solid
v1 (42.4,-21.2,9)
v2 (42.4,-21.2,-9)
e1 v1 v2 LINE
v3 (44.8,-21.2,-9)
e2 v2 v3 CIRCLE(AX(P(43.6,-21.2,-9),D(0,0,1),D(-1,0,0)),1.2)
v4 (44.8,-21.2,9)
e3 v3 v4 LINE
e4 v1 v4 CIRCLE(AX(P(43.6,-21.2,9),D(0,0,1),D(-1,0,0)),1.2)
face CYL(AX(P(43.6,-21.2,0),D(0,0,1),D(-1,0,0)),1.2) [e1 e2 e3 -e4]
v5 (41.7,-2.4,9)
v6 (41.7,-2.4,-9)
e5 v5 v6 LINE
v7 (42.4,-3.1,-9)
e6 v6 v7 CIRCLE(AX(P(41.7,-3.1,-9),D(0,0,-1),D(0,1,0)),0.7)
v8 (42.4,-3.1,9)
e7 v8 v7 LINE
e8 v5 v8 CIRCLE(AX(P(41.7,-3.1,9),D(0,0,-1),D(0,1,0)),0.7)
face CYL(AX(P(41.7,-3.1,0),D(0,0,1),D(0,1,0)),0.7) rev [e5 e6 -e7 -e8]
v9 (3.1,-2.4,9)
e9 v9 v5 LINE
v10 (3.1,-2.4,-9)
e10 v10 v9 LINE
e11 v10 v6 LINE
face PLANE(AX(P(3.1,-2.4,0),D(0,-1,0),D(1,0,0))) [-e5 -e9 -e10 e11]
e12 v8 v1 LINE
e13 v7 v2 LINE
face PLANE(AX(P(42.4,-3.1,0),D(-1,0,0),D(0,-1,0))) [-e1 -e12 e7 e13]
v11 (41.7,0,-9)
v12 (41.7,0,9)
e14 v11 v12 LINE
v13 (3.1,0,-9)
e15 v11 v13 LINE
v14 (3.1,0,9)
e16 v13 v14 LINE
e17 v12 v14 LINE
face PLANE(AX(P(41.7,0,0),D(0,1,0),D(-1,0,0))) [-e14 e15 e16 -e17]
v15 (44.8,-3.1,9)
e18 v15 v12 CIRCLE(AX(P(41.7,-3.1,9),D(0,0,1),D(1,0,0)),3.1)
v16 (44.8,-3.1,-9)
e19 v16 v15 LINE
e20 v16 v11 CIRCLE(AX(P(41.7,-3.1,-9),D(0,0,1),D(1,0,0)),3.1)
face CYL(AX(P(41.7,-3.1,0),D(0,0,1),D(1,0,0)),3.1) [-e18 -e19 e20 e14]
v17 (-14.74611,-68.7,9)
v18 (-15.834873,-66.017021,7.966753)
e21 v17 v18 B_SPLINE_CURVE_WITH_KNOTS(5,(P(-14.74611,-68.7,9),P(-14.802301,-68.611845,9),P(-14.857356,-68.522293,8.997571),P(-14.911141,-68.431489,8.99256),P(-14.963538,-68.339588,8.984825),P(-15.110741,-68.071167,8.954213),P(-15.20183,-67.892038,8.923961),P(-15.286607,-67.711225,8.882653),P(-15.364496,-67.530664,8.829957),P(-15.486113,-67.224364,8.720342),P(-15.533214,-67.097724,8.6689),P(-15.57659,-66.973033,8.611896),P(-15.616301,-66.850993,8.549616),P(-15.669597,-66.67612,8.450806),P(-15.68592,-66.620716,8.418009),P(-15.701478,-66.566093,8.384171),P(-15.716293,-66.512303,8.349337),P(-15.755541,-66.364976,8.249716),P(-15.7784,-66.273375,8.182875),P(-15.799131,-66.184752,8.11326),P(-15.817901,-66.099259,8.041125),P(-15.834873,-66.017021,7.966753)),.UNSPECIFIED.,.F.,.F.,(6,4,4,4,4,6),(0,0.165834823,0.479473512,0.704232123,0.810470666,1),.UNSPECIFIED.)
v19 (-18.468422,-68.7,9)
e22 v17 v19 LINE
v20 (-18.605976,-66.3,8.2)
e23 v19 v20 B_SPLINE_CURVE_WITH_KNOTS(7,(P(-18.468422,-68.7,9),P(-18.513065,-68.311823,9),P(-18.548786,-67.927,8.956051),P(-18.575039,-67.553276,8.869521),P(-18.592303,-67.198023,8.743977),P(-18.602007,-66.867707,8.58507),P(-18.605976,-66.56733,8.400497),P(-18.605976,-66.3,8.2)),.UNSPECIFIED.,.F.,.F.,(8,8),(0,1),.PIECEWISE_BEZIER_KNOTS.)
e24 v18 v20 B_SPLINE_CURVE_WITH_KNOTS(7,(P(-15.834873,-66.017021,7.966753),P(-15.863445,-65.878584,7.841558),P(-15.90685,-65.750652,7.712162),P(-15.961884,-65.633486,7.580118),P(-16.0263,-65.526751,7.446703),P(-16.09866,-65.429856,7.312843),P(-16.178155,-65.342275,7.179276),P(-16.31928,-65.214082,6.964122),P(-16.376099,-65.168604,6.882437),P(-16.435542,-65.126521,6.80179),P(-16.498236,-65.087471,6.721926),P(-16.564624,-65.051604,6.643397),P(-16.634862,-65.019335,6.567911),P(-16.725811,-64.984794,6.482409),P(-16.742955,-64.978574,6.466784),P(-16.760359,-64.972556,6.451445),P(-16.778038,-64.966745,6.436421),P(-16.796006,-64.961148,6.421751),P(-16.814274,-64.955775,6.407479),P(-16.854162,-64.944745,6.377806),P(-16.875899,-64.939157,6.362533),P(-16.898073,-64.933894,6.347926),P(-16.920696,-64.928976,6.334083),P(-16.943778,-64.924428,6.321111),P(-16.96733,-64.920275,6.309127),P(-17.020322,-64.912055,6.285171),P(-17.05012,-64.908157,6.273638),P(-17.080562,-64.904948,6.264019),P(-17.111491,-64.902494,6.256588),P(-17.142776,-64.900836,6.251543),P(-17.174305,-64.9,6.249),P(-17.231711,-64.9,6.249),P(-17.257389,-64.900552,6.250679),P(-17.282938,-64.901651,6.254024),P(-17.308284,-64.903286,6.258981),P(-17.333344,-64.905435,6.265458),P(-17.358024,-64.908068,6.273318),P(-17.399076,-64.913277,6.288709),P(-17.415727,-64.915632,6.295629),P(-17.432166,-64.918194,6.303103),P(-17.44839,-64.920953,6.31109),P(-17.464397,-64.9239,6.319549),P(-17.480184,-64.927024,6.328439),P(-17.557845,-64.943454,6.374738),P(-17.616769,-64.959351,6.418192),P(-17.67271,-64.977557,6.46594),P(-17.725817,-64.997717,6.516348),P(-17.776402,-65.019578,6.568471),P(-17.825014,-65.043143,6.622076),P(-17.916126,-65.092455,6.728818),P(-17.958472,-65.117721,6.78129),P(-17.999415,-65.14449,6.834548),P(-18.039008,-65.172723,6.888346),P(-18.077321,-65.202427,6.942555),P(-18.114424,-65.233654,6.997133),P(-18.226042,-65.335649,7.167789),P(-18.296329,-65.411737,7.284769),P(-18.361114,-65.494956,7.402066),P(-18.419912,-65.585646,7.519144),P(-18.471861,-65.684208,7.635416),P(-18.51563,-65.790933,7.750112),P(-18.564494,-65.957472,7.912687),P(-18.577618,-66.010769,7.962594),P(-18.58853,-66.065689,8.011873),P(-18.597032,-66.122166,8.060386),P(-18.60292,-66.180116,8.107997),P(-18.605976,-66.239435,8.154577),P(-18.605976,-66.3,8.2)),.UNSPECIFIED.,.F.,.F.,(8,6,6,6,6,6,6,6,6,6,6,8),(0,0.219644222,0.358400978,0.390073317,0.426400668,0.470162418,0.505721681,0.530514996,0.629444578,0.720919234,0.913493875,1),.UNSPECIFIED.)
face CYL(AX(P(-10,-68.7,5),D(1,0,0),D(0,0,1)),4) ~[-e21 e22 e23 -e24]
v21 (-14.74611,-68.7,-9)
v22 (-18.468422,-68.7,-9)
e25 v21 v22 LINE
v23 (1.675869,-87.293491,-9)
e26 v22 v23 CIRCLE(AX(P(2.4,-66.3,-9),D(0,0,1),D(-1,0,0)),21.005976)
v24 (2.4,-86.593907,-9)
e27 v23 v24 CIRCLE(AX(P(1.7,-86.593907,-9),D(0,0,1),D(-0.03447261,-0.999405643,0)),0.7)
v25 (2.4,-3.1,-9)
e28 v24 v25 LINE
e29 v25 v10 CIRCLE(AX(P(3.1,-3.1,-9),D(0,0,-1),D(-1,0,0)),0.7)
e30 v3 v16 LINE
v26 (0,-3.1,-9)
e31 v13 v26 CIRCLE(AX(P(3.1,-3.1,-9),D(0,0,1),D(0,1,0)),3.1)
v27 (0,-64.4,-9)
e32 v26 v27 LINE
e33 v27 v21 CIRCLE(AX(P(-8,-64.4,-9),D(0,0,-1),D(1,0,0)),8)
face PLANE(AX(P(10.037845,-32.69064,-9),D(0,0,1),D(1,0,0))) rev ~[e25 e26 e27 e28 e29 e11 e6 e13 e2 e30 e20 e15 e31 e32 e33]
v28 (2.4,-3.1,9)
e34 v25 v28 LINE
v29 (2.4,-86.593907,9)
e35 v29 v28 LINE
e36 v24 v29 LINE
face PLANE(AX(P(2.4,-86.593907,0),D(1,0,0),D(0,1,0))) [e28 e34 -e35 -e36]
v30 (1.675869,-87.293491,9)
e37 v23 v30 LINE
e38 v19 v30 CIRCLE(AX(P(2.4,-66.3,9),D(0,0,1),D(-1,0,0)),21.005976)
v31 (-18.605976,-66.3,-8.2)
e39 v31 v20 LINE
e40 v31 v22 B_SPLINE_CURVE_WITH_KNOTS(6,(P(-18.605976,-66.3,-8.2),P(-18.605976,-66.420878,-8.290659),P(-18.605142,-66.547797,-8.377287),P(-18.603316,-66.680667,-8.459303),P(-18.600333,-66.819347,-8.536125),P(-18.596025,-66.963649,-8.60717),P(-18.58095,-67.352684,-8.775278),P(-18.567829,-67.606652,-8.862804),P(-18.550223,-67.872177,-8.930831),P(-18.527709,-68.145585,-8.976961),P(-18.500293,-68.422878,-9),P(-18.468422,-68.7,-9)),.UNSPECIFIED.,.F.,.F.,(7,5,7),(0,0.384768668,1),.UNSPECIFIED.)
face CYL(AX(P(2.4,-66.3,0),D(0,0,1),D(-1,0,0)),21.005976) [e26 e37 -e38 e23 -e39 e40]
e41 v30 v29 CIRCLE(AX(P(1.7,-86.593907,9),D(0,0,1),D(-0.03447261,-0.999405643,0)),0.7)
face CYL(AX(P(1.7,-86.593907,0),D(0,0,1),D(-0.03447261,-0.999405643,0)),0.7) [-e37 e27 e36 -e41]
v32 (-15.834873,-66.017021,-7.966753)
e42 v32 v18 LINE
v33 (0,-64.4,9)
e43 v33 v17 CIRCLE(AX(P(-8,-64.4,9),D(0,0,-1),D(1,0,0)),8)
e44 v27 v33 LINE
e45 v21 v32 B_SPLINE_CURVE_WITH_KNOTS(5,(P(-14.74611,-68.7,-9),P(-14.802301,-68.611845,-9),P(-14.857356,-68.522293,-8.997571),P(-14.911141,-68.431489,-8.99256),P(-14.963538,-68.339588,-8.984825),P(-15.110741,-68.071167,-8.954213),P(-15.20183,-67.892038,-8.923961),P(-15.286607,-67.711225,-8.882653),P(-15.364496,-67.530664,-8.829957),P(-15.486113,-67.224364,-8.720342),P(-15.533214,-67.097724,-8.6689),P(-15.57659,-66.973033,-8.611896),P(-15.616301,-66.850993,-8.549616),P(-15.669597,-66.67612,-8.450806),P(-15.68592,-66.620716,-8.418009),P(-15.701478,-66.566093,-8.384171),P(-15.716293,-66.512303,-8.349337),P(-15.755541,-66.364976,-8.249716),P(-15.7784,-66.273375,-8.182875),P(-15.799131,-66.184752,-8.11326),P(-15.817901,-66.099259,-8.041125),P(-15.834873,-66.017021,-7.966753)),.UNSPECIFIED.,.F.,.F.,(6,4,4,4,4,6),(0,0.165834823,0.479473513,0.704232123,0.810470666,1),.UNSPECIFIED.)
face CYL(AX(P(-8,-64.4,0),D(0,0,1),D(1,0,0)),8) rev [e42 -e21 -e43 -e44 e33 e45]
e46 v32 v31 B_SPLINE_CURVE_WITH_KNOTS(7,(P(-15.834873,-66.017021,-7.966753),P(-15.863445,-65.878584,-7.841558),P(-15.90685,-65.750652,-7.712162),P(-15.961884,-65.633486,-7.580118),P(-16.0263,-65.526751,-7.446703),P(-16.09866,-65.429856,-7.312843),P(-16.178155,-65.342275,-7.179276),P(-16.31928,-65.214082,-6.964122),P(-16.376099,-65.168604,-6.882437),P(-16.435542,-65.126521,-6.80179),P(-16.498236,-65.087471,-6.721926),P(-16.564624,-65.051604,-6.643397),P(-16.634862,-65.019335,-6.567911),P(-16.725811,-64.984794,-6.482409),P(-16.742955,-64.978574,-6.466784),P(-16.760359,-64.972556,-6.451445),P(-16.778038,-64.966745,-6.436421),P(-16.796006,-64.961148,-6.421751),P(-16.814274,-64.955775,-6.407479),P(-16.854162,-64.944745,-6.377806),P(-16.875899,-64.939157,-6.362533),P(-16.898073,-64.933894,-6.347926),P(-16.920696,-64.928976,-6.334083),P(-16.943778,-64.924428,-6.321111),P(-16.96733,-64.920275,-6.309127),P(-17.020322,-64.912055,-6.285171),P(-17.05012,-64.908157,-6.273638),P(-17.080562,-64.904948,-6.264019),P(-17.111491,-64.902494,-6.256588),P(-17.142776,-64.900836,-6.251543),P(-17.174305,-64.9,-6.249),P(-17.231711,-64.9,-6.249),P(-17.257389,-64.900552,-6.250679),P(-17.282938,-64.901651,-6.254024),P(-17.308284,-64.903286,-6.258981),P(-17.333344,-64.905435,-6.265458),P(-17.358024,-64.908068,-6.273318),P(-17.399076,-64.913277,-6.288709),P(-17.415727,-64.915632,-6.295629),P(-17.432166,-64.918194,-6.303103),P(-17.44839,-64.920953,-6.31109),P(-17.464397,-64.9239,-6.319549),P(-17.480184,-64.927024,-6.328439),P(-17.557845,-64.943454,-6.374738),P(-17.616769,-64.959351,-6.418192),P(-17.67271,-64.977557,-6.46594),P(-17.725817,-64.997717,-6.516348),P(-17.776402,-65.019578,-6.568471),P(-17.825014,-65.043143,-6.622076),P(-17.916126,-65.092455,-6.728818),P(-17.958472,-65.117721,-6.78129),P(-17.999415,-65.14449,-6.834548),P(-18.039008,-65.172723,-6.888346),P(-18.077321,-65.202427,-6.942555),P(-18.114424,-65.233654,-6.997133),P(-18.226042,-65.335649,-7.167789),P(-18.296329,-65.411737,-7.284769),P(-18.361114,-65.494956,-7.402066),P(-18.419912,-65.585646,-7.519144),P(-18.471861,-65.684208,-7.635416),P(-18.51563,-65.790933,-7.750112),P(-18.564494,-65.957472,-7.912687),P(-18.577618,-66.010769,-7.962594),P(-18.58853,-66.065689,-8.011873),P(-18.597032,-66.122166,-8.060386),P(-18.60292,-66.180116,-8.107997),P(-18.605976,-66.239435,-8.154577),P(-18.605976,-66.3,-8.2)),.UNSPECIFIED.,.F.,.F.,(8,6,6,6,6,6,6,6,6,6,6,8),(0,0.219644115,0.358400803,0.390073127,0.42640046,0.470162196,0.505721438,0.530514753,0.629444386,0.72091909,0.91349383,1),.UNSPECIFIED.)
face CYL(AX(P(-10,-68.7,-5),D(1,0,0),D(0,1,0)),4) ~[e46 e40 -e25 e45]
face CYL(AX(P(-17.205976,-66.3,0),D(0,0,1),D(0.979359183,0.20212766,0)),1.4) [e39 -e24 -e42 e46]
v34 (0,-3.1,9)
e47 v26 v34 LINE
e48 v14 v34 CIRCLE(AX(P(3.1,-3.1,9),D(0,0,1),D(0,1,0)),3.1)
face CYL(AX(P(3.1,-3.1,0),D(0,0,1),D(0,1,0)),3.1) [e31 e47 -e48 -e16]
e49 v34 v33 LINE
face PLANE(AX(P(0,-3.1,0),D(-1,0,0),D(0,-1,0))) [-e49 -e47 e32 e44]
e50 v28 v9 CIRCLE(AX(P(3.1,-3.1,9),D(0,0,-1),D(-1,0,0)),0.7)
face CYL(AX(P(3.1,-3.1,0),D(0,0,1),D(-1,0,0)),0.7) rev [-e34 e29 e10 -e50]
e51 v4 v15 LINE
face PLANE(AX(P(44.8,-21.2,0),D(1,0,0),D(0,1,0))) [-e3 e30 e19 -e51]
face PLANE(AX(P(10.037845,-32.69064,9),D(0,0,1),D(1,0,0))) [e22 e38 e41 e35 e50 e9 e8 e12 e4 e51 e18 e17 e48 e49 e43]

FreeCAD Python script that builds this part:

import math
import FreeCAD as App
import Part
import Sketcher
from FreeCAD import Vector
Q = App.Units.Quantity

doc = App.newDocument("Part")
body = doc.addObject("PartDesign::Body", "Body")

sketch1 = body.newObject("Sketcher::SketchObject", "Sketch")
sketch1.AttachmentSupport = (doc.getObject("XY_Plane"), [""])
sketch1.MapMode = "FlatFace"
sketch1.addGeometry(Part.ArcOfCircle(Part.Circle(Vector(43.6, -21.2, 0), Vector(0, 0, 1), 1.2), math.radians(180), math.radians(360)), False)
sketch1.addGeometry(Part.LineSegment(Vector(44.8, -21.2, 0), Vector(44.8, -3.1, 0)), False)
sketch1.addGeometry(Part.ArcOfCircle(Part.Circle(Vector(41.7, -3.1, 0), Vector(0, 0, 1), 3.1), math.radians(0), math.radians(90)), False)
sketch1.addGeometry(Part.LineSegment(Vector(41.7, 0, 0), Vector(3.1, 0, 0)), False)
sketch1.addGeometry(Part.ArcOfCircle(Part.Circle(Vector(3.1, -3.1, 0), Vector(0, 0, 1), 3.1), math.radians(90), math.radians(180)), False)
sketch1.addGeometry(Part.LineSegment(Vector(0, -3.1, 0), Vector(0, -64.4, 0)), False)
sketch1.addGeometry(Part.ArcOfCircle(Part.Circle(Vector(-8, -64.4, 0), Vector(0, 0, 1), 8), math.radians(-168), math.radians(0)), False)
sketch1.addGeometry(Part.ArcOfCircle(Part.Circle(Vector(-17.2, -66.3, 0), Vector(0, 0, 1), 1.4), math.radians(12), math.radians(180)), False)
sketch1.addGeometry(Part.ArcOfCircle(Part.Circle(Vector(2.4, -66.3, 0), Vector(0, 0, 1), 21), math.radians(180), math.radians(268)), False)
sketch1.addGeometry(Part.ArcOfCircle(Part.Circle(Vector(1.7, -86.6, 0), Vector(0, 0, 1), 0.7), math.radians(-92), math.radians(0)), False)
sketch1.addGeometry(Part.LineSegment(Vector(2.4, -86.6, 0), Vector(2.4, -3.1, 0)), False)
sketch1.addGeometry(Part.ArcOfCircle(Part.Circle(Vector(3.1, -3.1, 0), Vector(0, 0, 1), 0.7), math.radians(90), math.radians(180)), False)
sketch1.addGeometry(Part.LineSegment(Vector(3.1, -2.4, 0), Vector(41.7, -2.4, 0)), False)
sketch1.addGeometry(Part.ArcOfCircle(Part.Circle(Vector(41.7, -3.1, 0), Vector(0, 0, 1), 0.7), math.radians(0), math.radians(90)), False)
sketch1.addGeometry(Part.LineSegment(Vector(42.4, -3.1, 0), Vector(42.4, -21.2, 0)), False)
sketch1.addConstraint(Sketcher.Constraint("Tangent", 0, 2, 1, 1))
sketch1.addConstraint(Sketcher.Constraint("Tangent", 1, 2, 2, 1))
sketch1.addConstraint(Sketcher.Constraint("Tangent", 2, 2, 3, 1))
sketch1.addConstraint(Sketcher.Constraint("Tangent", 3, 2, 4, 1))
sketch1.addConstraint(Sketcher.Constraint("Tangent", 4, 2, 5, 1))
sketch1.addConstraint(Sketcher.Constraint("Tangent", 5, 2, 6, 2))
sketch1.addConstraint(Sketcher.Constraint("Tangent", 6, 1, 7, 1))
sketch1.addConstraint(Sketcher.Constraint("Tangent", 7, 2, 8, 1))
sketch1.addConstraint(Sketcher.Constraint("Tangent", 8, 2, 9, 1))
sketch1.addConstraint(Sketcher.Constraint("Tangent", 9, 2, 10, 1))
sketch1.addConstraint(Sketcher.Constraint("Tangent", 10, 2, 11, 2))
sketch1.addConstraint(Sketcher.Constraint("Tangent", 11, 1, 12, 1))
sketch1.addConstraint(Sketcher.Constraint("Tangent", 12, 2, 13, 2))
sketch1.addConstraint(Sketcher.Constraint("Tangent", 13, 1, 14, 1))
sketch1.addConstraint(Sketcher.Constraint("Tangent", 14, 2, 0, 1))
sketch1.addConstraint(Sketcher.Constraint("Vertical", 1))
sketch1.addConstraint(Sketcher.Constraint("Horizontal", 3))
sketch1.addConstraint(Sketcher.Constraint("Vertical", 5))
sketch1.addConstraint(Sketcher.Constraint("Vertical", 10))
sketch1.addConstraint(Sketcher.Constraint("Horizontal", 12))
sketch1.addConstraint(Sketcher.Constraint("Vertical", 14))
sketch1.addConstraint(Sketcher.Constraint("Coincident", 11, 3, 4, 3))
sketch1.addConstraint(Sketcher.Constraint("Coincident", 13, 3, 2, 3))
sketch1.addConstraint(Sketcher.Constraint("Equal", 2, 4))
sketch1.addConstraint(Sketcher.Constraint("Equal", 9, 11))
sketch1.addConstraint(Sketcher.Constraint("PointOnObject", 2, 2, -1))
sketch1.addConstraint(Sketcher.Constraint("PointOnObject", 4, 2, -2))
sketch1.addConstraint(Sketcher.Constraint("Horizontal", 7, 3, 8, 3))
sketch1.addConstraint(Sketcher.Constraint("Vertical", 8, 3, 9, 2))
sketch1.addConstraint(Sketcher.Constraint("Radius", 6, Q("8 mm")))
sketch1.addConstraint(Sketcher.Constraint("Radius", 0, Q("1.2 mm")))
sketch1.addConstraint(Sketcher.Constraint("Radius", 2, Q("3.1 mm")))
sketch1.addConstraint(Sketcher.Constraint("Radius", 7, Q("1.4 mm")))
sketch1.addConstraint(Sketcher.Constraint("DistanceX", 3, 2, 3, 1, Q("38.6 mm")))
sketch1.addConstraint(Sketcher.Constraint("DistanceY", 1, 1, 1, 2, Q("18.1 mm")))
sketch1.addConstraint(Sketcher.Constraint("DistanceY", 5, 2, 5, 1, Q("61.3 mm")))
sketch1.addConstraint(Sketcher.Constraint("DistanceY", 7, 3, -1, 1, Q("66.3 mm")))
pad1 = body.newObject("PartDesign::Pad", "Pad")
pad1.Profile = sketch1
pad1.Length = 18
pad1.Midplane = True

sketch2 = body.newObject("Sketcher::SketchObject", "Sketch001")
sketch2.AttachmentSupport = (doc.getObject("YZ_Plane"), [""])
sketch2.MapMode = "FlatFace"
sketch2.AttachmentOffset = App.Placement(Vector(0, 0, -10), App.Rotation())
sketch2.addGeometry(Part.ArcOfCircle(Part.Circle(Vector(-68.7, -5, 0), Vector(0, 0, 1), 4), math.radians(-90), math.radians(0)), False)
sketch2.addGeometry(Part.LineSegment(Vector(-68.7, -9, 0), Vector(-68.7, -10, 0)), False)
sketch2.addGeometry(Part.LineSegment(Vector(-68.7, -10, 0), Vector(-63.7, -10, 0)), False)
sketch2.addGeometry(Part.LineSegment(Vector(-63.7, -10, 0), Vector(-63.7, 10, 0)), False)
sketch2.addGeometry(Part.LineSegment(Vector(-63.7, 10, 0), Vector(-68.7, 10, 0)), False)
sketch2.addGeometry(Part.LineSegment(Vector(-68.7, 10, 0), Vector(-68.7, 9, 0)), False)
sketch2.addGeometry(Part.ArcOfCircle(Part.Circle(Vector(-68.7, 5, 0), Vector(0, 0, 1), 4), math.radians(0), math.radians(90)), False)
sketch2.addGeometry(Part.LineSegment(Vector(-64.7, 5, 0), Vector(-64.7, -5, 0)), False)
sketch2.addConstraint(Sketcher.Constraint("Coincident", 0, 1, 1, 1))
sketch2.addConstraint(Sketcher.Constraint("Coincident", 1, 2, 2, 1))
sketch2.addConstraint(Sketcher.Constraint("Coincident", 2, 2, 3, 1))
sketch2.addConstraint(Sketcher.Constraint("Coincident", 3, 2, 4, 1))
sketch2.addConstraint(Sketcher.Constraint("Coincident", 4, 2, 5, 1))
sketch2.addConstraint(Sketcher.Constraint("Coincident", 5, 2, 6, 2))
sketch2.addConstraint(Sketcher.Constraint("Tangent", 6, 1, 7, 1))
sketch2.addConstraint(Sketcher.Constraint("Tangent", 7, 2, 0, 2))
sketch2.addConstraint(Sketcher.Constraint("Vertical", 1))
sketch2.addConstraint(Sketcher.Constraint("Horizontal", 2))
sketch2.addConstraint(Sketcher.Constraint("Vertical", 3))
sketch2.addConstraint(Sketcher.Constraint("Horizontal", 4))
sketch2.addConstraint(Sketcher.Constraint("Vertical", 5))
sketch2.addConstraint(Sketcher.Constraint("Vertical", 7))
sketch2.addConstraint(Sketcher.Constraint("Equal", 0, 6))
sketch2.addConstraint(Sketcher.Constraint("Symmetric", 1, 2, 4, 2, -1))
sketch2.addConstraint(Sketcher.Constraint("Vertical", 6, 3, 0, 1))
sketch2.addConstraint(Sketcher.Constraint("Equal", 1, 5))
sketch2.addConstraint(Sketcher.Constraint("Radius", 0, Q("4 mm")))
sketch2.addConstraint(Sketcher.Constraint("DistanceX", 2, 1, 2, 2, Q("5 mm")))
sketch2.addConstraint(Sketcher.Constraint("DistanceY", 1, 2, 1, 1, Q("1 mm")))
sketch2.addConstraint(Sketcher.Constraint("DistanceY", 3, 1, 3, 2, Q("20 mm")))
sketch2.addConstraint(Sketcher.Constraint("DistanceX", 0, 3, -1, 1, Q("68.7 mm")))
pocket1 = body.newObject("PartDesign::Pocket", "Pocket")
pocket1.Profile = sketch2
pocket1.Length = 20

doc.recompute()
